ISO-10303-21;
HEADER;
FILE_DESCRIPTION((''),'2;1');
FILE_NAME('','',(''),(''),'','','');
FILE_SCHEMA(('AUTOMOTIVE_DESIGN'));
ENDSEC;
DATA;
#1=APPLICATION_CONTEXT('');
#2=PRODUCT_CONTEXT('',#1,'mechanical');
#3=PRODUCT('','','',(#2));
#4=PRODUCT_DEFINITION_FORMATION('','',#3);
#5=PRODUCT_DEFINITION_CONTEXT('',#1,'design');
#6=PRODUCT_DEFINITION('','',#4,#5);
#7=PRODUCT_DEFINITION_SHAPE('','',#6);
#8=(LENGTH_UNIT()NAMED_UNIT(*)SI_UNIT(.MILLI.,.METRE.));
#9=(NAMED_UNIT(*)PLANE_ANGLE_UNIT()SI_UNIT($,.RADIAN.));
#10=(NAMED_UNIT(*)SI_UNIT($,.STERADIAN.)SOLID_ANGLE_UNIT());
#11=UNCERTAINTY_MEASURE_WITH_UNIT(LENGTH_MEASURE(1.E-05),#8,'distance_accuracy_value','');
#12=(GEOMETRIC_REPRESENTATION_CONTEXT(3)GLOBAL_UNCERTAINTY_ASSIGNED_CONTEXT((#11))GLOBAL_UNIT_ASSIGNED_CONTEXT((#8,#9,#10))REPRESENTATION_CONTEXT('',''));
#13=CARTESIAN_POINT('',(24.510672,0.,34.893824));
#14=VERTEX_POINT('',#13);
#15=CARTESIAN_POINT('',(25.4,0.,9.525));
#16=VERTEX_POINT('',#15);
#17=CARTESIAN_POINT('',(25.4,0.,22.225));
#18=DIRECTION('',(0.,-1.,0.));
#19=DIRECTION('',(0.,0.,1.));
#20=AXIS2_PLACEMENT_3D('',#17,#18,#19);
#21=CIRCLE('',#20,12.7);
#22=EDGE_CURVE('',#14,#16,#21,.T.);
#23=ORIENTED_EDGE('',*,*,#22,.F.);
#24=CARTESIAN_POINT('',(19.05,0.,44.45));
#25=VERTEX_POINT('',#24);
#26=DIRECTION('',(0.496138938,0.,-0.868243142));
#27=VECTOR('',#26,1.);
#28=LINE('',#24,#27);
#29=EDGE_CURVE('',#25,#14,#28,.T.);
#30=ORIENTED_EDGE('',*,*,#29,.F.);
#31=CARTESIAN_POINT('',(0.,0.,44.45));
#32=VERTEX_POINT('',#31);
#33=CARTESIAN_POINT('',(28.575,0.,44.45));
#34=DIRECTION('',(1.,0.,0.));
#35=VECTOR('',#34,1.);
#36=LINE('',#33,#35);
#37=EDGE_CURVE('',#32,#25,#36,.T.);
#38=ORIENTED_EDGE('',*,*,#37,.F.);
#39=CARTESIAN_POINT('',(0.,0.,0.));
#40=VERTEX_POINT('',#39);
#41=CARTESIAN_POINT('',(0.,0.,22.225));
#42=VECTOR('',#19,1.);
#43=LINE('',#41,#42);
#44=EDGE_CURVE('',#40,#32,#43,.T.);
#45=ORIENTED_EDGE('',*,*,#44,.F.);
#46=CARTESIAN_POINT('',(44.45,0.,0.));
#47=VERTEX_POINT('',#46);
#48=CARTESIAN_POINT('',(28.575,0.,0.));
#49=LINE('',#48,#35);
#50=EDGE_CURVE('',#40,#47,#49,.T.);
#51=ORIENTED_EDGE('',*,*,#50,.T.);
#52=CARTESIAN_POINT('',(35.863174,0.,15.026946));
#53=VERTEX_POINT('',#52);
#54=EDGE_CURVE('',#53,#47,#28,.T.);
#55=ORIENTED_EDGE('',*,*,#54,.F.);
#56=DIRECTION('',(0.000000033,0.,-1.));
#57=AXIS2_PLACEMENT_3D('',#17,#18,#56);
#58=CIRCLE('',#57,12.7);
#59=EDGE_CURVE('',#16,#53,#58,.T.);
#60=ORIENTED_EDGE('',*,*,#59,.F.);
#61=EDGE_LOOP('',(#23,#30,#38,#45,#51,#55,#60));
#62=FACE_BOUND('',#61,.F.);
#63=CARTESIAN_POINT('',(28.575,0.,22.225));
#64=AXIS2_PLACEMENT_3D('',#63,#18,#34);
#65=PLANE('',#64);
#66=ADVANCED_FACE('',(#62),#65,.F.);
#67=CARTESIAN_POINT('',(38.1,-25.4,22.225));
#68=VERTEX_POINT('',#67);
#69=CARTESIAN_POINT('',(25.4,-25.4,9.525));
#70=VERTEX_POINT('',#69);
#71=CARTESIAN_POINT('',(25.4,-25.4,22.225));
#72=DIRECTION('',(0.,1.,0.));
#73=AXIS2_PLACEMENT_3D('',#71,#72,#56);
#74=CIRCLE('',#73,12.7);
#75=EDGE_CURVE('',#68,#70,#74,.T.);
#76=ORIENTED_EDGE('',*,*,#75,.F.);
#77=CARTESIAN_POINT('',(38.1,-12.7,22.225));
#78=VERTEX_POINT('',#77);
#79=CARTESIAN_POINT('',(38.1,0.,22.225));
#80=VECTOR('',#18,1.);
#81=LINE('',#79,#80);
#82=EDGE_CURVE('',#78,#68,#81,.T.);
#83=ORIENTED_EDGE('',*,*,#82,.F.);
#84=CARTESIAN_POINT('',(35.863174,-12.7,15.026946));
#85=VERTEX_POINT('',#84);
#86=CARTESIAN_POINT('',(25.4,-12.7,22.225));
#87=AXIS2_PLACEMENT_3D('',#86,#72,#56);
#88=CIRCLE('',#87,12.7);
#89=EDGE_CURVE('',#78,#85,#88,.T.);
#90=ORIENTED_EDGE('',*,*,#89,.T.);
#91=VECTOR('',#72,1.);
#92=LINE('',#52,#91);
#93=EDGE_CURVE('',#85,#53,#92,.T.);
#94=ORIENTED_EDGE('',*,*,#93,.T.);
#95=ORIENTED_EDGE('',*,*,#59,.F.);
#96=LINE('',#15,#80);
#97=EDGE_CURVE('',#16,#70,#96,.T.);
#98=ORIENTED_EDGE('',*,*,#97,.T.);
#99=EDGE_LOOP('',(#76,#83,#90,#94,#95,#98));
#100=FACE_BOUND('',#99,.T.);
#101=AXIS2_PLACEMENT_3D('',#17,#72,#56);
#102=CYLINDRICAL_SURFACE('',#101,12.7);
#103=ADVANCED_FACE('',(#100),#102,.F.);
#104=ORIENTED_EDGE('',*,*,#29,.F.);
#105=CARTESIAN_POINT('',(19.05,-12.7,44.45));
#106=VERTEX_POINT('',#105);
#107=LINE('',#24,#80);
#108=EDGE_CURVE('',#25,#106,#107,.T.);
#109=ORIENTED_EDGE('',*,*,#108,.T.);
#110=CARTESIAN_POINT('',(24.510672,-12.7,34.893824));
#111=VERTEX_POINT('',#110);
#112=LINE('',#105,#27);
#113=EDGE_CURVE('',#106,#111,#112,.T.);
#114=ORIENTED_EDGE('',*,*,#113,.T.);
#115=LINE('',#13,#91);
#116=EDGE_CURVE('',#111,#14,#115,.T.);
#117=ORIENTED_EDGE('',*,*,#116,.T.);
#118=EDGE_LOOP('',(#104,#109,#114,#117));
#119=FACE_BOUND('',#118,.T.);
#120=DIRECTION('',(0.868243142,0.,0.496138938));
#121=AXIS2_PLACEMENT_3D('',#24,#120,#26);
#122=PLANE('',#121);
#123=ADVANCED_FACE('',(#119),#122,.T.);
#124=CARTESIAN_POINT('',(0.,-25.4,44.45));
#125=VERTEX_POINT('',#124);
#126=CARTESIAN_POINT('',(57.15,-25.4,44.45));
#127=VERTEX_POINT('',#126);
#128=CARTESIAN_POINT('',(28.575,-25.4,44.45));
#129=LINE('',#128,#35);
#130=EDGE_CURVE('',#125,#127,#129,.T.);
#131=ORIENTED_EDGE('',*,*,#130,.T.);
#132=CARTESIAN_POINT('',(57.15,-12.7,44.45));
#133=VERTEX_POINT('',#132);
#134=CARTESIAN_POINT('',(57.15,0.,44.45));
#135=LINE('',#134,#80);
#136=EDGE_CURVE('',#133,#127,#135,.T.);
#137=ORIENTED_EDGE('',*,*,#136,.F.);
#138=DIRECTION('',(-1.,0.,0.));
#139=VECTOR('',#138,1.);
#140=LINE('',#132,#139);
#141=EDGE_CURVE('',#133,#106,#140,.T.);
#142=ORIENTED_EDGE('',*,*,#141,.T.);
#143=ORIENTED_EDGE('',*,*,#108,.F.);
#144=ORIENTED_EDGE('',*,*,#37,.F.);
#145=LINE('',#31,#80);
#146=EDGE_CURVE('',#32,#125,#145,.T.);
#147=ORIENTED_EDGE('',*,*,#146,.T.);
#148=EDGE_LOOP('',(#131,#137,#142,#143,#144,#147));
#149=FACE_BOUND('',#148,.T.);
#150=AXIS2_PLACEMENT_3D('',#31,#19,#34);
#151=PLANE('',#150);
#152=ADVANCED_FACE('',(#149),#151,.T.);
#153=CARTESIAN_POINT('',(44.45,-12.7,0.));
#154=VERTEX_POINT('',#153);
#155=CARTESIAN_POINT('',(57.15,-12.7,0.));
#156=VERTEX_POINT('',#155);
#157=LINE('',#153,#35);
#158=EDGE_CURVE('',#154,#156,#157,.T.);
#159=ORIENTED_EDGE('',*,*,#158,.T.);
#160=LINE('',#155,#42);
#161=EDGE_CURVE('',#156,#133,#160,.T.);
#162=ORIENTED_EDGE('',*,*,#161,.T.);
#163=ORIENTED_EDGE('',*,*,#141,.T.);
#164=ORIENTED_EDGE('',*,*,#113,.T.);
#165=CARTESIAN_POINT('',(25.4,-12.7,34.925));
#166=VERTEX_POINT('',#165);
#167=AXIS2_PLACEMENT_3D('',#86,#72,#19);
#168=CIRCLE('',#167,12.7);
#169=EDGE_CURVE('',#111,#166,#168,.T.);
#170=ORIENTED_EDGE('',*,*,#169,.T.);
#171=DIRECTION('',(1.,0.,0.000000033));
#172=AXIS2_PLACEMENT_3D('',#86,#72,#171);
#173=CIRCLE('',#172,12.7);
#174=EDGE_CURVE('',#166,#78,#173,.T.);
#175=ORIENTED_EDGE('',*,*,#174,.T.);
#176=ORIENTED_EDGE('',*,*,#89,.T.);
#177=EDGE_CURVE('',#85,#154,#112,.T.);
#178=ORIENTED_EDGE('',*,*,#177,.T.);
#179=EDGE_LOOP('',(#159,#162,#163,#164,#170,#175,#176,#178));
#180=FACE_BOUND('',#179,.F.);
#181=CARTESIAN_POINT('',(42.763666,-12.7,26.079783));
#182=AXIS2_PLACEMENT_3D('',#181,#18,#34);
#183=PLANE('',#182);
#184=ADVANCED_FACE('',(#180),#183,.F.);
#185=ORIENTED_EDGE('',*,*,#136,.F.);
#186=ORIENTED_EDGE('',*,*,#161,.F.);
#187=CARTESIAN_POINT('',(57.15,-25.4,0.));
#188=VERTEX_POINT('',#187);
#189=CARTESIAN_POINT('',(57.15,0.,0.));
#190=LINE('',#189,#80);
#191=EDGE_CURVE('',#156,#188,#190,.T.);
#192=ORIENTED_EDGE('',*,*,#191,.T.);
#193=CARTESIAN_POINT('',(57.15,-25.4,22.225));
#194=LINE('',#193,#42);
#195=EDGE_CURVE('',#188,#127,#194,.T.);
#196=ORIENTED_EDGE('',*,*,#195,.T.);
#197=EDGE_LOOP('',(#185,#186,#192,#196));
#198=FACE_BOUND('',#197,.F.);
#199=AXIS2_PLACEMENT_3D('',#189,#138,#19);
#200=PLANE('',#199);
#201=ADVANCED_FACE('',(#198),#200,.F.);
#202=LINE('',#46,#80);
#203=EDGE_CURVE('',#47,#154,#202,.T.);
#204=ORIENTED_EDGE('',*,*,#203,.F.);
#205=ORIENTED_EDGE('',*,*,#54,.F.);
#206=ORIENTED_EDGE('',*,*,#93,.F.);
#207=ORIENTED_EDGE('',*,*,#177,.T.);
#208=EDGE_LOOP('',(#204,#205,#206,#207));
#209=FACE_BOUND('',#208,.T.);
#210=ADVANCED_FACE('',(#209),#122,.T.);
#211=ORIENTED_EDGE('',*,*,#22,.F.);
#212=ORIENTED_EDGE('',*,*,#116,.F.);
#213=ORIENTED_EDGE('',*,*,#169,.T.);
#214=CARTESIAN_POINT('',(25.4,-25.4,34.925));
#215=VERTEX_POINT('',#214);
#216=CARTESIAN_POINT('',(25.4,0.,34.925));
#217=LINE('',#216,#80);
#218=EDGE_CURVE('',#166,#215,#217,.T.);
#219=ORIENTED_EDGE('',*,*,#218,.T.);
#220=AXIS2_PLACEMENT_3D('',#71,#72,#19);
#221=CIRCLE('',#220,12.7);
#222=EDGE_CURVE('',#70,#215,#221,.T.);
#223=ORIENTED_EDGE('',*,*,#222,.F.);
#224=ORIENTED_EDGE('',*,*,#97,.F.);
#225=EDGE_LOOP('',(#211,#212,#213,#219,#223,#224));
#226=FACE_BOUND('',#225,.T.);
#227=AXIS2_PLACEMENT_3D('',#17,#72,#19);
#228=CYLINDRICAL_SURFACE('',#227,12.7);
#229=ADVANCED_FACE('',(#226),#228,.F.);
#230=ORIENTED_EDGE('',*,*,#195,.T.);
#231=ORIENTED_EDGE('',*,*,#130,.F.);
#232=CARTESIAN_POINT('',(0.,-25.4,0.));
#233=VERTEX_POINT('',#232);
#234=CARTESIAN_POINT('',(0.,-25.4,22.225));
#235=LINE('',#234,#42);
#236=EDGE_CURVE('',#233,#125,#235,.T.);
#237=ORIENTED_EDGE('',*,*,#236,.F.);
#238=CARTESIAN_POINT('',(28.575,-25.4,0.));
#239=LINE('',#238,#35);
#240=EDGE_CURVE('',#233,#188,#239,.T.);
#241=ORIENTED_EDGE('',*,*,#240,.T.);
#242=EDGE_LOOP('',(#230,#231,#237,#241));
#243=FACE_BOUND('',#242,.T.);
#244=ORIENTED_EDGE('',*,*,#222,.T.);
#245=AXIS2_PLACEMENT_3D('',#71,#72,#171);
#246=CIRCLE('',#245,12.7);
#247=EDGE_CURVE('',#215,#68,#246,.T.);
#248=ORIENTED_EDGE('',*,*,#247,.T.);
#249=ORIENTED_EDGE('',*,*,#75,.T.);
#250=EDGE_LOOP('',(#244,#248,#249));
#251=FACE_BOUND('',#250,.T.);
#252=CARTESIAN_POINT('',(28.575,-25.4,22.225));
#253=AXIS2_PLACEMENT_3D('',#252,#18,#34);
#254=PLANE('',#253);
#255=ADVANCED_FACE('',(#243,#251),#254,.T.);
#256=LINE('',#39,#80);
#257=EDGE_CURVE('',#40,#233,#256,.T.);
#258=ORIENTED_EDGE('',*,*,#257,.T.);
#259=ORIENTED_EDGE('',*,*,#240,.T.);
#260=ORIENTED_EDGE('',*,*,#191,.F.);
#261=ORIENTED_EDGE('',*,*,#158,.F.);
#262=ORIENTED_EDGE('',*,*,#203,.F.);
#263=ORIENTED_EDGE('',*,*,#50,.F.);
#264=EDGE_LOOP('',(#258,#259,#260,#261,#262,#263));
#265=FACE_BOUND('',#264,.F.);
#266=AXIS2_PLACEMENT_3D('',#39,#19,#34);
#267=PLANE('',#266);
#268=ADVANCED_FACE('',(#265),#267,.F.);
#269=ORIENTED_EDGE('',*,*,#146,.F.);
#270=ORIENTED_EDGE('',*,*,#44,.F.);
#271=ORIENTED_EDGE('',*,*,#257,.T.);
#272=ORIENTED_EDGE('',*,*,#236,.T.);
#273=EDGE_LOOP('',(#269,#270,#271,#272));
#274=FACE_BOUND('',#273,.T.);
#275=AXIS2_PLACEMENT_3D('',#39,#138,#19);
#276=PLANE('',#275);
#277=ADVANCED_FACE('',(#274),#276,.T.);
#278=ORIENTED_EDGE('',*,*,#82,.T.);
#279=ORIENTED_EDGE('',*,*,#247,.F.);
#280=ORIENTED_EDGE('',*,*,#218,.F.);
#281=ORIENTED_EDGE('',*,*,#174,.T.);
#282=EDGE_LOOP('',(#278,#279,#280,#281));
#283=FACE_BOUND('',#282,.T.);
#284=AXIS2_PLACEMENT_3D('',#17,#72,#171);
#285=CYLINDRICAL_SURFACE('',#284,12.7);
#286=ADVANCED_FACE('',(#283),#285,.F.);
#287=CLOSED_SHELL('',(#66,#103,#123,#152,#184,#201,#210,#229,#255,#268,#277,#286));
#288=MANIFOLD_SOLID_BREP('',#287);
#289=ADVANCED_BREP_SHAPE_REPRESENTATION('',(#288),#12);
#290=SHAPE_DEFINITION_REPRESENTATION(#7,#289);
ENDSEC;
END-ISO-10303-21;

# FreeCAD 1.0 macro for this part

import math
import FreeCAD as App
import Part
import Sketcher
Q = App.Units.Quantity


def add_polygon(sketch, points):
    """Adds a closed chain of lines whose ends are joined by coincident constraints."""
    first, n = sketch.GeometryCount, len(points)
    for a, b in zip(points, points[1:] + points[:1]):
        sketch.addGeometry(Part.LineSegment(App.Vector(*a, 0), App.Vector(*b, 0)), False)
    for i in range(n):
        sketch.addConstraint(Sketcher.Constraint("Coincident", first + i, 2, first + (i + 1) % n, 1))

doc = App.newDocument("Part")
body = doc.addObject("PartDesign::Body", "Body")

# Sketch on XZ plane
sketch1 = body.newObject("Sketcher::SketchObject", "Sketch")
sketch1.AttachmentSupport = (doc.getObject("XZ_Plane"), [""])
sketch1.MapMode = "FlatFace"
add_polygon(sketch1, [(0, 44), (0, 0), (57, 0), (57, 44)])  # lines 0-3
sketch1.addConstraint([
    Sketcher.Constraint("Vertical", 0),
    Sketcher.Constraint("Horizontal", 1),
    Sketcher.Constraint("Vertical", 2),
    Sketcher.Constraint("Horizontal", 3),
    Sketcher.Constraint("Coincident", 0, 2, -1, 1),
    Sketcher.Constraint("DistanceX", 1, 1, 1, 2, Q("2.25 in")),
    Sketcher.Constraint("DistanceY", 0, 2, 0, 1, Q("1.75 in")),
])
pad1 = body.newObject("PartDesign::Pad", "Pad")
pad1.Profile = sketch1
pad1.Length = Q("1 in")

# Sketch on XZ plane
sketch2 = body.newObject("Sketcher::SketchObject", "Sketch001")
sketch2.AttachmentSupport = (doc.getObject("XZ_Plane"), [""])
sketch2.MapMode = "FlatFace"
add_polygon(sketch2, [(19, 44), (44, 0), (57, 0), (57, 44)])  # lines 0-3
sketch2.addConstraint([
    Sketcher.Constraint("Horizontal", 1),
    Sketcher.Constraint("Vertical", 2),
    Sketcher.Constraint("Horizontal", 3),
    Sketcher.Constraint("PointOnObject", 0, 2, -1),
    Sketcher.Constraint("DistanceX", 1, 1, 1, 2, Q("0.5 in")),
    Sketcher.Constraint("DistanceX", 3, 2, 3, 1, Q("1.5 in")),
    Sketcher.Constraint("DistanceY", 2, 1, 2, 2, Q("1.75 in")),
    Sketcher.Constraint("DistanceX", -1, 1, 0, 2, Q("1.75 in")),
])
pocket1 = body.newObject("PartDesign::Pocket", "Pocket")
pocket1.Profile = sketch2
pocket1.Length = Q("0.5 in")
pocket1.Reversed = True

# Sketch on XZ plane
sketch3 = body.newObject("Sketcher::SketchObject", "Sketch002")
sketch3.AttachmentSupport = (doc.getObject("XZ_Plane"), [""])
sketch3.MapMode = "FlatFace"
sketch3.addGeometry([
    Part.ArcOfCircle(Part.Circle(App.Vector(25, 22, 0), App.Vector(0, 0, 1), 13), math.radians(0), math.radians(90)),
    Part.ArcOfCircle(Part.Circle(App.Vector(25, 22, 0), App.Vector(0, 0, 1), 13), math.radians(90), math.radians(270)),
    Part.ArcOfCircle(Part.Circle(App.Vector(25, 22, 0), App.Vector(0, 0, 1), 13), math.radians(-90), math.radians(0)),
], False)
sketch3.addConstraint([
    Sketcher.Constraint("Tangent", 0, 2, 1, 1),
    Sketcher.Constraint("Tangent", 1, 2, 2, 1),
    Sketcher.Constraint("Tangent", 2, 2, 0, 1),
    Sketcher.Constraint("Horizontal", 1, 3, 2, 2),
    Sketcher.Constraint("Vertical", 2, 3, 0, 2),
    Sketcher.Constraint("Vertical", 0, 2, 1, 2),
    Sketcher.Constraint("Radius", 0, Q("0.5 in")),
    Sketcher.Constraint("DistanceX", -1, 1, 0, 3, Q("1 in")),
    Sketcher.Constraint("DistanceY", -1, 1, 0, 3, Q("0.875 in")),
])
pocket2 = body.newObject("PartDesign::Pocket", "Pocket001")
pocket2.Profile = sketch3
pocket2.Type = "ThroughAll"
pocket2.Reversed = True

doc.recompute()
